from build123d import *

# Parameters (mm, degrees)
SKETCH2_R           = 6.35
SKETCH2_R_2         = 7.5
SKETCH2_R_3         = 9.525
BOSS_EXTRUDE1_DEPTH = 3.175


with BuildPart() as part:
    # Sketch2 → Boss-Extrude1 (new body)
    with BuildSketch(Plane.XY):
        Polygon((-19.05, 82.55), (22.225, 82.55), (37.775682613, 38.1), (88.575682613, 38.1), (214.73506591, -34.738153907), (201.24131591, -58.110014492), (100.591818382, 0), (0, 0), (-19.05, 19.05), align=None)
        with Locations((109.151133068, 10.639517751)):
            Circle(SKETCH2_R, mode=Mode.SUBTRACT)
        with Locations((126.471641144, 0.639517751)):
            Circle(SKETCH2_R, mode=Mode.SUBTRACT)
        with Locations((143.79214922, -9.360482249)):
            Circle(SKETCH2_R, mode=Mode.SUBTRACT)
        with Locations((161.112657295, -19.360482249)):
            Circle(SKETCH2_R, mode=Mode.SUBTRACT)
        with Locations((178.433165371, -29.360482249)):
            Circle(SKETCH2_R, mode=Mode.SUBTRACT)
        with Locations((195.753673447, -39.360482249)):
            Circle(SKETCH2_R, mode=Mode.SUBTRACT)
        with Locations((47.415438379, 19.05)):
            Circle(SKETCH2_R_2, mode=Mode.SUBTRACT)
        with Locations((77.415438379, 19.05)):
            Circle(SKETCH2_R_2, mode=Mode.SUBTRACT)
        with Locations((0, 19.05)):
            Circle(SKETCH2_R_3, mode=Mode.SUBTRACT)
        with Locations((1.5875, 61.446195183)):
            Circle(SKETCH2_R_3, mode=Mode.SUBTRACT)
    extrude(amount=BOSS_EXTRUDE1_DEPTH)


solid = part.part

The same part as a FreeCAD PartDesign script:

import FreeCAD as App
import Part
import Sketcher
Q = App.Units.Quantity


def add_polygon(sketch, points):
    """Adds a closed chain of lines whose ends are joined by coincident constraints."""
    first, n = sketch.GeometryCount, len(points)
    for a, b in zip(points, points[1:] + points[:1]):
        sketch.addGeometry(Part.LineSegment(App.Vector(*a, 0), App.Vector(*b, 0)), False)
    for i in range(n):
        sketch.addConstraint(Sketcher.Constraint("Coincident", first + i, 2, first + (i + 1) % n, 1))

doc = App.newDocument("Part")
body = doc.addObject("PartDesign::Body", "Body")

# Sketch on XY plane
sketch1 = doc.addObject("Sketcher::SketchObject", "Sketch")
body.addObject(sketch1)
sketch1.AttachmentSupport = (doc.XY_Plane, [""])
sketch1.MapMode = "FlatFace"
add_polygon(sketch1, [(22, 83), (-19, 83), (-19, 19), (0, 0), (101, 0), (201, -58), (215, -35), (89, 38), (38, 38)])  # lines 0-8
sketch1.addGeometry(Part.Circle(App.Vector(196, -39, 0), App.Vector(0, 0, 1), 6), False)  # 9
sketch1.addGeometry(Part.Circle(App.Vector(178, -29, 0), App.Vector(0, 0, 1), 6), False)  # 10
sketch1.addGeometry(Part.Circle(App.Vector(161, -19, 0), App.Vector(0, 0, 1), 6), False)  # 11
sketch1.addGeometry(Part.Circle(App.Vector(144, -9, 0), App.Vector(0, 0, 1), 6), False)  # 12
sketch1.addGeometry(Part.Circle(App.Vector(126, 1, 0), App.Vector(0, 0, 1), 6), False)  # 13
sketch1.addGeometry(Part.Circle(App.Vector(109, 11, 0), App.Vector(0, 0, 1), 6), False)  # 14
sketch1.addGeometry(Part.Circle(App.Vector(77, 19, 0), App.Vector(0, 0, 1), 8), False)  # 15
sketch1.addGeometry(Part.Circle(App.Vector(47, 19, 0), App.Vector(0, 0, 1), 8), False)  # 16
sketch1.addGeometry(Part.Circle(App.Vector(0, 19, 0), App.Vector(0, 0, 1), 10), False)  # 17
sketch1.addGeometry(Part.Circle(App.Vector(2, 61, 0), App.Vector(0, 0, 1), 10), False)  # 18
sketch1.addConstraint([
    Sketcher.Constraint("Horizontal", 0),
    Sketcher.Constraint("Vertical", 1),
    Sketcher.Constraint("Horizontal", 3),
    Sketcher.Constraint("Horizontal", 7),
    Sketcher.Constraint("Coincident", 2, 2, -1, 1),
    Sketcher.Constraint("Equal", 9, 10),
    Sketcher.Constraint("Equal", 10, 11),
    Sketcher.Constraint("Equal", 11, 12),
    Sketcher.Constraint("Equal", 12, 13),
    Sketcher.Constraint("Equal", 13, 14),
    Sketcher.Constraint("Equal", 15, 16),
    Sketcher.Constraint("Equal", 17, 18),
    Sketcher.Constraint("PointOnObject", 17, 3, -2),
    Sketcher.Constraint("Perpendicular", 4, 5),
    Sketcher.Constraint("Perpendicular", 5, 6),
    Sketcher.Constraint("Horizontal", 15, 3, 16, 3),
    Sketcher.Constraint("Horizontal", 16, 3, 17, 3),
    Sketcher.Constraint("Horizontal", 17, 3, 1, 2),
    Sketcher.Constraint("Diameter", 9, Q("0.5 in")),
    Sketcher.Constraint("Diameter", 17, Q("0.75 in")),
    Sketcher.Constraint("DistanceX", 7, 2, 7, 1, Q("2 in")),
    Sketcher.Constraint("DistanceY", 1, 2, 1, 1, Q("2.5 in")),
    Sketcher.Constraint("Angle", 2, Q("-45 deg")),
    Sketcher.Constraint("Angle", 4, Q("-30 deg")),
    Sketcher.Constraint("DistanceY", -1, 1, 6, 2, Q("1.5 in")),
    Sketcher.Constraint("Diameter", 15, Q("15 mm")),
    Sketcher.Constraint("DistanceX", 0, 2, 0, 1, Q("1.625 in")),
    Sketcher.Constraint("DistanceY", -1, 1, 15, 3, Q("0.75 in")),
    Sketcher.Constraint("Distance", 5, Q("1.0625 in")),
    Sketcher.Constraint("DistanceX", -1, 1, 18, 3, Q("0.0625 in")),
    Sketcher.Constraint("DistanceX", 3, 1, 3, 2, Q("100.591818 mm")),
    Sketcher.Constraint("DistanceY", 9, 3, 10, 3, Q("10 mm")),
    Sketcher.Constraint("DistanceY", 10, 3, 11, 3, Q("10 mm")),
    Sketcher.Constraint("DistanceY", 11, 3, 12, 3, Q("10 mm")),
    Sketcher.Constraint("DistanceY", 12, 3, 13, 3, Q("10 mm")),
    Sketcher.Constraint("DistanceY", 13, 3, 14, 3, Q("10 mm")),
    Sketcher.Constraint("DistanceX", 16, 3, 15, 3, Q("30 mm")),
    Sketcher.Constraint("DistanceX", 10, 3, 5, 2, Q("36.301901 mm")),
    Sketcher.Constraint("Distance", 4, Q("116.220029 mm")),
    Sketcher.Constraint("DistanceX", -1, 1, 12, 3, Q("143.792149 mm")),
    Sketcher.Constraint("DistanceX", -1, 1, 13, 3, Q("126.471641 mm")),
    Sketcher.Constraint("DistanceX", -1, 1, 15, 3, Q("77.415438 mm")),
    Sketcher.Constraint("DistanceX", 10, 3, 9, 3, Q("17.320508 mm")),
    Sketcher.Constraint("DistanceX", 11, 3, 10, 3, Q("17.320508 mm")),
    Sketcher.Constraint("DistanceX", 14, 3, 13, 3, Q("17.320508 mm")),
    Sketcher.Constraint("DistanceY", 9, 3, 5, 2, Q("4.622328 mm")),
    Sketcher.Constraint("DistanceY", -1, 1, 18, 3, Q("61.446195 mm")),
])
pad1 = doc.addObject("PartDesign::Pad", "Pad")
body.addObject(pad1)
pad1.Profile = sketch1
pad1.Length = Q("0.125 in")

doc.recompute()
